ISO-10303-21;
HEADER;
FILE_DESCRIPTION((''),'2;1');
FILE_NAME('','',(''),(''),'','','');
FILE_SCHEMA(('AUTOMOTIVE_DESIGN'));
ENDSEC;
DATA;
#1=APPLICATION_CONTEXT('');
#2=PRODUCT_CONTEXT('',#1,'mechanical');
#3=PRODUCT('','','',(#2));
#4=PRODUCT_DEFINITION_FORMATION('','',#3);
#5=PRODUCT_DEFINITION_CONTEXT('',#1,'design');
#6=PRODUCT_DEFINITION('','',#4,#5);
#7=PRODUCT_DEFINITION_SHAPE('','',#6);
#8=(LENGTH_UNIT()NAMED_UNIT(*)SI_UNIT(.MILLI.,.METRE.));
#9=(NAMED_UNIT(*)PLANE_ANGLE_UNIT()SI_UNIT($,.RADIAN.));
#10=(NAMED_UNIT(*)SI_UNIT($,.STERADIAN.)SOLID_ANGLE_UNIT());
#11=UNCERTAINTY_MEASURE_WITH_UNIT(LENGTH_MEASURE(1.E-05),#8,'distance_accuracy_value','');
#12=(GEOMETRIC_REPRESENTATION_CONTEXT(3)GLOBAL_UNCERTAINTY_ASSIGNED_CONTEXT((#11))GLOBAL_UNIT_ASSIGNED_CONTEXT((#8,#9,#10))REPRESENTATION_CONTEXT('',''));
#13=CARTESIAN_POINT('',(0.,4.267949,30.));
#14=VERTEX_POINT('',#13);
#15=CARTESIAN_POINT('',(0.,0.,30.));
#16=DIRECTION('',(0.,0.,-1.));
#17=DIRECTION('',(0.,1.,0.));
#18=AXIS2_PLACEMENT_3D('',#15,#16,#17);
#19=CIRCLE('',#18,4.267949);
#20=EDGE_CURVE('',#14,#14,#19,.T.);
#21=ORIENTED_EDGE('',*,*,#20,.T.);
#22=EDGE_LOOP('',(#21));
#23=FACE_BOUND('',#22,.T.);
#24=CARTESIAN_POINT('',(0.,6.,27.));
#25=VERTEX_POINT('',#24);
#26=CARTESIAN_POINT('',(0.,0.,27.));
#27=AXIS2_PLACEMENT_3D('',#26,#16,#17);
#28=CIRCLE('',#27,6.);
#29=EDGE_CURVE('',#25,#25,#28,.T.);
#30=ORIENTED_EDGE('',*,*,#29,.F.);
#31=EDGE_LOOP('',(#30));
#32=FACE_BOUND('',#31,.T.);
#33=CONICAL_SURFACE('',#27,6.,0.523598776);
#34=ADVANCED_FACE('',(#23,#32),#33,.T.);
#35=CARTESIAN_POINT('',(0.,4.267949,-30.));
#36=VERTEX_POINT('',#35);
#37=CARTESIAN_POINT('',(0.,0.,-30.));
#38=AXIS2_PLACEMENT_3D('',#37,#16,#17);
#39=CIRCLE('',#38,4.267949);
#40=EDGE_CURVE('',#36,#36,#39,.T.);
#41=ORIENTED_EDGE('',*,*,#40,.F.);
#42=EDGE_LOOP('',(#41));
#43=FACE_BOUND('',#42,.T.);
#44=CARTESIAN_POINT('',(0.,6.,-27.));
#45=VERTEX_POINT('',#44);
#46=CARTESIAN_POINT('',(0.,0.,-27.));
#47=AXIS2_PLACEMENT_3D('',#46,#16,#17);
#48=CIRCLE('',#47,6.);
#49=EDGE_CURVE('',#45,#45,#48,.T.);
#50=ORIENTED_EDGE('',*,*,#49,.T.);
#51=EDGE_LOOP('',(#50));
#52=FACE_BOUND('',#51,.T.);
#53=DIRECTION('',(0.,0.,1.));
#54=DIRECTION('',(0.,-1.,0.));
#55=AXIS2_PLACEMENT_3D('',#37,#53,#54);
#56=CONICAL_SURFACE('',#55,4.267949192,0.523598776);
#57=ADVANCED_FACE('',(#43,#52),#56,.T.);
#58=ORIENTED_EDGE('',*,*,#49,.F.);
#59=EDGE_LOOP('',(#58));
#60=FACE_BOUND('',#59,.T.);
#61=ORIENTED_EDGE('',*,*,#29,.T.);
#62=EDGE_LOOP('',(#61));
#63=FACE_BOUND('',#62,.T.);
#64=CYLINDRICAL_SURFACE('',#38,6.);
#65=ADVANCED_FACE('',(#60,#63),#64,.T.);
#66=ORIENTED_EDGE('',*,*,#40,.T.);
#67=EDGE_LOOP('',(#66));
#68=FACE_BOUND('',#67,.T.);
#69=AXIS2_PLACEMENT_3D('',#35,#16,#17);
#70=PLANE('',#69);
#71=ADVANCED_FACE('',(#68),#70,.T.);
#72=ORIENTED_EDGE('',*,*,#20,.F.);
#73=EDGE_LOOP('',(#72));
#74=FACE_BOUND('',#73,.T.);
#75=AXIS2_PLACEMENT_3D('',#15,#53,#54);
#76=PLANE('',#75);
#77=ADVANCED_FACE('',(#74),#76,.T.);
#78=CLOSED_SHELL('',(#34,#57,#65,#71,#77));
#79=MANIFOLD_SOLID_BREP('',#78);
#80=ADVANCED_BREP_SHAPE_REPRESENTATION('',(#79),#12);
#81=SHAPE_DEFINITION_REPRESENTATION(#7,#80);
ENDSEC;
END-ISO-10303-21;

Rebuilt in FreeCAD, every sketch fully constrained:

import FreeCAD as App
import Part
import Sketcher
Q = App.Units.Quantity


def add_polygon(sketch, points):
    """Adds a closed chain of lines whose ends are joined by coincident constraints."""
    first, n = sketch.GeometryCount, len(points)
    for a, b in zip(points, points[1:] + points[:1]):
        sketch.addGeometry(Part.LineSegment(App.Vector(*a, 0), App.Vector(*b, 0)), False)
    for i in range(n):
        sketch.addConstraint(Sketcher.Constraint("Coincident", first + i, 2, first + (i + 1) % n, 1))

doc = App.newDocument("Part")
body = doc.addObject("PartDesign::Body", "Body")

sketch1 = body.newObject("Sketcher::SketchObject", "Sketch")
sketch1.AttachmentSupport = (doc.getObject("YZ_Plane"), [""])
sketch1.MapMode = "FlatFace"
add_polygon(sketch1, [(6, -27), (6, 27), (4.3, 30), (0, 30), (0, -30), (4.3, -30)])
sketch1.addConstraint(Sketcher.Constraint("Vertical", 0))
sketch1.addConstraint(Sketcher.Constraint("Horizontal", 2))
sketch1.addConstraint(Sketcher.Constraint("Vertical", 3))
sketch1.addConstraint(Sketcher.Constraint("Horizontal", 4))
sketch1.addConstraint(Sketcher.Constraint("Symmetric", 2, 2, 3, 2, -1, 1))
sketch1.addConstraint(Sketcher.Constraint("Vertical", 1, 2, 4, 2))
sketch1.addConstraint(Sketcher.Constraint("Equal", 1, 5))
sketch1.addConstraint(Sketcher.Constraint("DistanceY", 0, 1, 0, 2, Q("54 mm")))
sketch1.addConstraint(Sketcher.Constraint("DistanceY", 3, 2, 3, 1, Q("60 mm")))
sketch1.addConstraint(Sketcher.Constraint("Angle", 1, Q("120 deg")))
sketch1.addConstraint(Sketcher.Constraint("DistanceX", -1, 1, 0, 2, Q("6 mm")))
revolution = body.newObject("PartDesign::Revolution", "Revolution")
revolution.Profile = sketch1
revolution.ReferenceAxis = (sketch1, ["V_Axis"])
revolution.Angle = 360

doc.recompute()
